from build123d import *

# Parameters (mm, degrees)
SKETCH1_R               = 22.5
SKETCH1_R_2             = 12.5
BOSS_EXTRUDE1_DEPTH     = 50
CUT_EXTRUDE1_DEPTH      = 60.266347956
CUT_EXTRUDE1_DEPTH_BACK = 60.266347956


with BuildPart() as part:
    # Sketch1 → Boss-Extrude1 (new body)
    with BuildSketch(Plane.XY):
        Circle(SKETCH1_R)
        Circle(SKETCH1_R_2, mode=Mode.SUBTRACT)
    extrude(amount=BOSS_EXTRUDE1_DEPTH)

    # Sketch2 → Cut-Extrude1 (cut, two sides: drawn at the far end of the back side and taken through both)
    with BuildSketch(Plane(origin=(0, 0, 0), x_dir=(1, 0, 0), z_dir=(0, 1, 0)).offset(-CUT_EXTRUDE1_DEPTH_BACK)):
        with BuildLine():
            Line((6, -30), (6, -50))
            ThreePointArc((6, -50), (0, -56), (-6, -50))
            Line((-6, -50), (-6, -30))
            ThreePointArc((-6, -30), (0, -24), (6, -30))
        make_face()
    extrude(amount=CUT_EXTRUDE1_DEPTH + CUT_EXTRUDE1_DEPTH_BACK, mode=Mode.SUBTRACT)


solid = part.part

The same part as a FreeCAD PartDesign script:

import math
import FreeCAD as App
import Part
import Sketcher
from FreeCAD import Vector

doc = App.newDocument("Part")
body = doc.addObject("PartDesign::Body", "Body")

# Sketch on XY plane
sketch1 = body.newObject("Sketcher::SketchObject", "Sketch")
sketch1.AttachmentSupport = (doc.getObject("XY_Plane"), [""])
sketch1.MapMode = "FlatFace"
sketch1.addGeometry(Part.Circle(Vector(0, 0, 0), Vector(0, 0, 1), 22), False)
sketch1.addGeometry(Part.Circle(Vector(0, 0, 0), Vector(0, 0, 1), 12), False)
sketch1.addConstraint(Sketcher.Constraint("Coincident", 0, 3, -1, 1))
sketch1.addConstraint(Sketcher.Constraint("Coincident", 1, 3, -1, 1))
sketch1.addConstraint(Sketcher.Constraint("Diameter", 0, 45.0))
sketch1.addConstraint(Sketcher.Constraint("Diameter", 1, 25.0))
pad1 = body.newObject("PartDesign::Pad", "Pad")
pad1.Profile = sketch1
pad1.Length = 50

# Sketch on XZ plane
sketch2 = body.newObject("Sketcher::SketchObject", "Sketch001")
sketch2.AttachmentSupport = (doc.getObject("XZ_Plane"), [""])
sketch2.MapMode = "FlatFace"
sketch2.addGeometry(Part.LineSegment(Vector(6, 50, 0), Vector(6, 30, 0)), False)
sketch2.addGeometry(Part.ArcOfCircle(Part.Circle(Vector(0, 30, 0), Vector(0, 0, 1), 6), math.radians(180), math.radians(360)), False)
sketch2.addGeometry(Part.LineSegment(Vector(-6, 30, 0), Vector(-6, 50, 0)), False)
sketch2.addGeometry(Part.ArcOfCircle(Part.Circle(Vector(0, 50, 0), Vector(0, 0, 1), 6), math.radians(0), math.radians(180)), False)
sketch2.addConstraint(Sketcher.Constraint("Tangent", 0, 2, 1, 2))
sketch2.addConstraint(Sketcher.Constraint("Tangent", 1, 1, 2, 1))
sketch2.addConstraint(Sketcher.Constraint("Tangent", 2, 2, 3, 2))
sketch2.addConstraint(Sketcher.Constraint("Tangent", 3, 1, 0, 1))
sketch2.addConstraint(Sketcher.Constraint("Vertical", 0))
sketch2.addConstraint(Sketcher.Constraint("Vertical", 2))
sketch2.addConstraint(Sketcher.Constraint("PointOnObject", 1, 3, -2))
sketch2.addConstraint(Sketcher.Constraint("Radius", 1, 6.0))
sketch2.addConstraint(Sketcher.Constraint("DistanceY", 0, 2, 0, 1, 20.0))
sketch2.addConstraint(Sketcher.Constraint("DistanceY", -1, 1, 1, 3, 30.0))
pocket1 = body.newObject("PartDesign::Pocket", "Pocket")
pocket1.Profile = sketch2
pocket1.Type = "ThroughAll"
pocket1.Midplane = True

doc.recompute()
